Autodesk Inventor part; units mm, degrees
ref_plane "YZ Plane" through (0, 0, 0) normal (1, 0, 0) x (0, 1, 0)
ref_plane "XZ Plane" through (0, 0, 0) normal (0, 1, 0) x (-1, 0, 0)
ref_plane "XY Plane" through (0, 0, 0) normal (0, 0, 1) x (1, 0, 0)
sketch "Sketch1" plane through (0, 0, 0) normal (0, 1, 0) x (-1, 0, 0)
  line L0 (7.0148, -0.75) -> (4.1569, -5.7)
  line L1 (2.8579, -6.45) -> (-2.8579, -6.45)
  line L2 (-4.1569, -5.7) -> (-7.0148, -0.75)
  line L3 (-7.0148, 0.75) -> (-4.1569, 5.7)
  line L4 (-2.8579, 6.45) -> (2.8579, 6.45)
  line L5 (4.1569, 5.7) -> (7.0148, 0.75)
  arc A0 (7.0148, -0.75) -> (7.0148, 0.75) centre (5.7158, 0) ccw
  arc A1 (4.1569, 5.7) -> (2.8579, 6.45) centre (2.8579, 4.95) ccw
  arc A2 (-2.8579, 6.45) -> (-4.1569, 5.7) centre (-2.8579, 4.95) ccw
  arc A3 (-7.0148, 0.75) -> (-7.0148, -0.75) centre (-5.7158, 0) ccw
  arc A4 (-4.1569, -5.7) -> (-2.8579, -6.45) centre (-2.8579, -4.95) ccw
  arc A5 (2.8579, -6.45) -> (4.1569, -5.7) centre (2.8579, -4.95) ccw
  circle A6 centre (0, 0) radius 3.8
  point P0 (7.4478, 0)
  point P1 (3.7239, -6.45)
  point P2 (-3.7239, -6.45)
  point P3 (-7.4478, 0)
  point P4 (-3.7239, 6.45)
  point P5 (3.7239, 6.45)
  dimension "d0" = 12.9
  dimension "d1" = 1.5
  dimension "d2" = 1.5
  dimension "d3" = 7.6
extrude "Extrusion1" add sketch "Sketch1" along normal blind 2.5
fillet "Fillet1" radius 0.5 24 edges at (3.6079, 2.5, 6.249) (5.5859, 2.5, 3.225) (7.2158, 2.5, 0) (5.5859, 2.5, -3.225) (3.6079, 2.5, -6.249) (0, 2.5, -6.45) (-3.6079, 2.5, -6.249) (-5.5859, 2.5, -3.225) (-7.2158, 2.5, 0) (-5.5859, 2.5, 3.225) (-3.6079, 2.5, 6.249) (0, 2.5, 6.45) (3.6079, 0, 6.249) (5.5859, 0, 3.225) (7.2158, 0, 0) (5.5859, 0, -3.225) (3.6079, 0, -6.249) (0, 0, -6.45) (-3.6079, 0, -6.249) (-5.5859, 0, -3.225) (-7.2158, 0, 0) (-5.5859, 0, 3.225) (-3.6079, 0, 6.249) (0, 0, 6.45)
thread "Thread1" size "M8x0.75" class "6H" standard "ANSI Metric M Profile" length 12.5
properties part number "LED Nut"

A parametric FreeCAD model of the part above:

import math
import FreeCAD as App
import Part
import Sketcher
from FreeCAD import Vector
Q = App.Units.Quantity


def edges_at(feature, points):
    """Names of the edges that pass closest to the given points."""
    edges = feature.Shape.Edges
    near = lambda p: min(range(len(edges)), key=lambda i: edges[i].distToShape(Part.Vertex(*p))[0])
    return sorted({f"Edge{near(p) + 1}" for p in points})

doc = App.newDocument("Part")
body = doc.addObject("PartDesign::Body", "Body")

# Sketch on XZ plane
sketch1 = body.newObject("Sketcher::SketchObject", "Sketch")
sketch1.AttachmentSupport = (doc.getObject("XZ_Plane"), [""])
sketch1.MapMode = "FlatFace"
sketch1.addGeometry([
    Part.LineSegment(Vector(-4.1569, -5.7, 0), Vector(-7.0148, -0.75, 0)),  # 0
    Part.ArcOfCircle(Part.Circle(Vector(-5.7158, 0, 0), Vector(0, 0, 1), 1.499967), math.radians(149.999272), math.radians(210.000728)),  # 1
    Part.LineSegment(Vector(-7.0148, 0.75, 0), Vector(-4.1569, 5.7, 0)),  # 2
    Part.ArcOfCircle(Part.Circle(Vector(-2.8579, 4.95, 0), Vector(0, 0, 1), 1.499967), math.radians(90), math.radians(149.999272)),  # 3
    Part.LineSegment(Vector(-2.8579, 6.45, 0), Vector(2.8579, 6.45, 0)),  # 4
    Part.ArcOfCircle(Part.Circle(Vector(2.8579, 4.95, 0), Vector(0, 0, 1), 1.5), math.radians(30.000728), math.radians(90)),  # 5
    Part.LineSegment(Vector(4.1569, 5.7, 0), Vector(7.0148, 0.75, 0)),  # 6
    Part.ArcOfCircle(Part.Circle(Vector(5.7158, 0, 0), Vector(0, 0, 1), 1.499967), math.radians(-30.000728), math.radians(30.000728)),  # 7
    Part.LineSegment(Vector(7.0148, -0.75, 0), Vector(4.1569, -5.7, 0)),  # 8
    Part.ArcOfCircle(Part.Circle(Vector(2.8579, -4.95, 0), Vector(0, 0, 1), 1.499967), math.radians(-90), math.radians(-30.000728)),  # 9
    Part.LineSegment(Vector(2.8579, -6.45, 0), Vector(-2.8579, -6.45, 0)),  # 10
    Part.ArcOfCircle(Part.Circle(Vector(-2.8579, -4.95, 0), Vector(0, 0, 1), 1.5), math.radians(-149.999272), math.radians(-90)),  # 11
    Part.Circle(Vector(0, 0, 0), Vector(0, 0, 1), 3.8),  # 12
], False)
sketch1.addConstraint([
    Sketcher.Constraint("Tangent", 0, 2, 1, 2),
    Sketcher.Constraint("Tangent", 1, 1, 2, 1),
    Sketcher.Constraint("Tangent", 2, 2, 3, 2),
    Sketcher.Constraint("Tangent", 3, 1, 4, 1),
    Sketcher.Constraint("Tangent", 4, 2, 5, 2),
    Sketcher.Constraint("Tangent", 5, 1, 6, 1),
    Sketcher.Constraint("Tangent", 6, 2, 7, 2),
    Sketcher.Constraint("Tangent", 7, 1, 8, 1),
    Sketcher.Constraint("Tangent", 8, 2, 9, 2),
    Sketcher.Constraint("Tangent", 9, 1, 10, 1),
    Sketcher.Constraint("Tangent", 10, 2, 11, 2),
    Sketcher.Constraint("Tangent", 11, 1, 0, 1),
    Sketcher.Constraint("Horizontal", 4),
    Sketcher.Constraint("Horizontal", 10),
    Sketcher.Constraint("Coincident", 12, 3, -1, 1),
    Sketcher.Constraint("Equal", 1, 3),
    Sketcher.Constraint("Equal", 3, 5),
    Sketcher.Constraint("Equal", 5, 7),
    Sketcher.Constraint("Equal", 7, 9),
    Sketcher.Constraint("Equal", 9, 11),
    Sketcher.Constraint("Symmetric", 1, 3, 7, 3, -1, 1),
    Sketcher.Constraint("Symmetric", 3, 3, 9, 3, -1, 1),
    Sketcher.Constraint("Symmetric", 2, 2, 5, 1, -2),
    Sketcher.Constraint("Parallel", 0, 6),
    Sketcher.Constraint("Diameter", 12, Q("7.6 mm")),
    Sketcher.Constraint("Radius", 1, Q("1.5 mm")),
    Sketcher.Constraint("DistanceY", 0, 2, 1, 1, Q("1.5 mm")),
    Sketcher.Constraint("DistanceY", -1, 1, 2, 2, Q("5.7 mm")),
    Sketcher.Constraint("DistanceX", 4, 1, 4, 2, Q("5.7158 mm")),
])
pad1 = body.newObject("PartDesign::Pad", "Pad")
pad1.Profile = sketch1
pad1.Length = 2.5
pad1.Reversed = True
doc.recompute()

fillet = body.newObject("PartDesign::Fillet", "Fillet")
fillet.Base = (pad1, edges_at(pad1, [
    (3.608, 2.5, 6.249),
    (5.586, 2.5, 3.225),
    (7.216, 2.5, 0),
    (5.586, 2.5, -3.225),
    (3.608, 2.5, -6.249),
    (0, 2.5, -6.45),
    (-3.608, 2.5, -6.249),
    (-5.586, 2.5, -3.225),
    (-7.216, 2.5, 0),
    (-5.586, 2.5, 3.225),
    (-3.608, 2.5, 6.249),
    (0, 2.5, 6.45),
    (3.608, 0, 6.249),
    (5.586, 0, 3.225),
    (7.216, 0, 0),
    (5.586, 0, -3.225),
    (3.608, 0, -6.249),
    (0, 0, -6.45),
    (-3.608, 0, -6.249),
    (-5.586, 0, -3.225),
    (-7.216, 0, 0),
    (-5.586, 0, 3.225),
    (-3.608, 0, 6.249),
    (0, 0, 6.45),
]))
fillet.Radius = 0.5

doc.recompute()
